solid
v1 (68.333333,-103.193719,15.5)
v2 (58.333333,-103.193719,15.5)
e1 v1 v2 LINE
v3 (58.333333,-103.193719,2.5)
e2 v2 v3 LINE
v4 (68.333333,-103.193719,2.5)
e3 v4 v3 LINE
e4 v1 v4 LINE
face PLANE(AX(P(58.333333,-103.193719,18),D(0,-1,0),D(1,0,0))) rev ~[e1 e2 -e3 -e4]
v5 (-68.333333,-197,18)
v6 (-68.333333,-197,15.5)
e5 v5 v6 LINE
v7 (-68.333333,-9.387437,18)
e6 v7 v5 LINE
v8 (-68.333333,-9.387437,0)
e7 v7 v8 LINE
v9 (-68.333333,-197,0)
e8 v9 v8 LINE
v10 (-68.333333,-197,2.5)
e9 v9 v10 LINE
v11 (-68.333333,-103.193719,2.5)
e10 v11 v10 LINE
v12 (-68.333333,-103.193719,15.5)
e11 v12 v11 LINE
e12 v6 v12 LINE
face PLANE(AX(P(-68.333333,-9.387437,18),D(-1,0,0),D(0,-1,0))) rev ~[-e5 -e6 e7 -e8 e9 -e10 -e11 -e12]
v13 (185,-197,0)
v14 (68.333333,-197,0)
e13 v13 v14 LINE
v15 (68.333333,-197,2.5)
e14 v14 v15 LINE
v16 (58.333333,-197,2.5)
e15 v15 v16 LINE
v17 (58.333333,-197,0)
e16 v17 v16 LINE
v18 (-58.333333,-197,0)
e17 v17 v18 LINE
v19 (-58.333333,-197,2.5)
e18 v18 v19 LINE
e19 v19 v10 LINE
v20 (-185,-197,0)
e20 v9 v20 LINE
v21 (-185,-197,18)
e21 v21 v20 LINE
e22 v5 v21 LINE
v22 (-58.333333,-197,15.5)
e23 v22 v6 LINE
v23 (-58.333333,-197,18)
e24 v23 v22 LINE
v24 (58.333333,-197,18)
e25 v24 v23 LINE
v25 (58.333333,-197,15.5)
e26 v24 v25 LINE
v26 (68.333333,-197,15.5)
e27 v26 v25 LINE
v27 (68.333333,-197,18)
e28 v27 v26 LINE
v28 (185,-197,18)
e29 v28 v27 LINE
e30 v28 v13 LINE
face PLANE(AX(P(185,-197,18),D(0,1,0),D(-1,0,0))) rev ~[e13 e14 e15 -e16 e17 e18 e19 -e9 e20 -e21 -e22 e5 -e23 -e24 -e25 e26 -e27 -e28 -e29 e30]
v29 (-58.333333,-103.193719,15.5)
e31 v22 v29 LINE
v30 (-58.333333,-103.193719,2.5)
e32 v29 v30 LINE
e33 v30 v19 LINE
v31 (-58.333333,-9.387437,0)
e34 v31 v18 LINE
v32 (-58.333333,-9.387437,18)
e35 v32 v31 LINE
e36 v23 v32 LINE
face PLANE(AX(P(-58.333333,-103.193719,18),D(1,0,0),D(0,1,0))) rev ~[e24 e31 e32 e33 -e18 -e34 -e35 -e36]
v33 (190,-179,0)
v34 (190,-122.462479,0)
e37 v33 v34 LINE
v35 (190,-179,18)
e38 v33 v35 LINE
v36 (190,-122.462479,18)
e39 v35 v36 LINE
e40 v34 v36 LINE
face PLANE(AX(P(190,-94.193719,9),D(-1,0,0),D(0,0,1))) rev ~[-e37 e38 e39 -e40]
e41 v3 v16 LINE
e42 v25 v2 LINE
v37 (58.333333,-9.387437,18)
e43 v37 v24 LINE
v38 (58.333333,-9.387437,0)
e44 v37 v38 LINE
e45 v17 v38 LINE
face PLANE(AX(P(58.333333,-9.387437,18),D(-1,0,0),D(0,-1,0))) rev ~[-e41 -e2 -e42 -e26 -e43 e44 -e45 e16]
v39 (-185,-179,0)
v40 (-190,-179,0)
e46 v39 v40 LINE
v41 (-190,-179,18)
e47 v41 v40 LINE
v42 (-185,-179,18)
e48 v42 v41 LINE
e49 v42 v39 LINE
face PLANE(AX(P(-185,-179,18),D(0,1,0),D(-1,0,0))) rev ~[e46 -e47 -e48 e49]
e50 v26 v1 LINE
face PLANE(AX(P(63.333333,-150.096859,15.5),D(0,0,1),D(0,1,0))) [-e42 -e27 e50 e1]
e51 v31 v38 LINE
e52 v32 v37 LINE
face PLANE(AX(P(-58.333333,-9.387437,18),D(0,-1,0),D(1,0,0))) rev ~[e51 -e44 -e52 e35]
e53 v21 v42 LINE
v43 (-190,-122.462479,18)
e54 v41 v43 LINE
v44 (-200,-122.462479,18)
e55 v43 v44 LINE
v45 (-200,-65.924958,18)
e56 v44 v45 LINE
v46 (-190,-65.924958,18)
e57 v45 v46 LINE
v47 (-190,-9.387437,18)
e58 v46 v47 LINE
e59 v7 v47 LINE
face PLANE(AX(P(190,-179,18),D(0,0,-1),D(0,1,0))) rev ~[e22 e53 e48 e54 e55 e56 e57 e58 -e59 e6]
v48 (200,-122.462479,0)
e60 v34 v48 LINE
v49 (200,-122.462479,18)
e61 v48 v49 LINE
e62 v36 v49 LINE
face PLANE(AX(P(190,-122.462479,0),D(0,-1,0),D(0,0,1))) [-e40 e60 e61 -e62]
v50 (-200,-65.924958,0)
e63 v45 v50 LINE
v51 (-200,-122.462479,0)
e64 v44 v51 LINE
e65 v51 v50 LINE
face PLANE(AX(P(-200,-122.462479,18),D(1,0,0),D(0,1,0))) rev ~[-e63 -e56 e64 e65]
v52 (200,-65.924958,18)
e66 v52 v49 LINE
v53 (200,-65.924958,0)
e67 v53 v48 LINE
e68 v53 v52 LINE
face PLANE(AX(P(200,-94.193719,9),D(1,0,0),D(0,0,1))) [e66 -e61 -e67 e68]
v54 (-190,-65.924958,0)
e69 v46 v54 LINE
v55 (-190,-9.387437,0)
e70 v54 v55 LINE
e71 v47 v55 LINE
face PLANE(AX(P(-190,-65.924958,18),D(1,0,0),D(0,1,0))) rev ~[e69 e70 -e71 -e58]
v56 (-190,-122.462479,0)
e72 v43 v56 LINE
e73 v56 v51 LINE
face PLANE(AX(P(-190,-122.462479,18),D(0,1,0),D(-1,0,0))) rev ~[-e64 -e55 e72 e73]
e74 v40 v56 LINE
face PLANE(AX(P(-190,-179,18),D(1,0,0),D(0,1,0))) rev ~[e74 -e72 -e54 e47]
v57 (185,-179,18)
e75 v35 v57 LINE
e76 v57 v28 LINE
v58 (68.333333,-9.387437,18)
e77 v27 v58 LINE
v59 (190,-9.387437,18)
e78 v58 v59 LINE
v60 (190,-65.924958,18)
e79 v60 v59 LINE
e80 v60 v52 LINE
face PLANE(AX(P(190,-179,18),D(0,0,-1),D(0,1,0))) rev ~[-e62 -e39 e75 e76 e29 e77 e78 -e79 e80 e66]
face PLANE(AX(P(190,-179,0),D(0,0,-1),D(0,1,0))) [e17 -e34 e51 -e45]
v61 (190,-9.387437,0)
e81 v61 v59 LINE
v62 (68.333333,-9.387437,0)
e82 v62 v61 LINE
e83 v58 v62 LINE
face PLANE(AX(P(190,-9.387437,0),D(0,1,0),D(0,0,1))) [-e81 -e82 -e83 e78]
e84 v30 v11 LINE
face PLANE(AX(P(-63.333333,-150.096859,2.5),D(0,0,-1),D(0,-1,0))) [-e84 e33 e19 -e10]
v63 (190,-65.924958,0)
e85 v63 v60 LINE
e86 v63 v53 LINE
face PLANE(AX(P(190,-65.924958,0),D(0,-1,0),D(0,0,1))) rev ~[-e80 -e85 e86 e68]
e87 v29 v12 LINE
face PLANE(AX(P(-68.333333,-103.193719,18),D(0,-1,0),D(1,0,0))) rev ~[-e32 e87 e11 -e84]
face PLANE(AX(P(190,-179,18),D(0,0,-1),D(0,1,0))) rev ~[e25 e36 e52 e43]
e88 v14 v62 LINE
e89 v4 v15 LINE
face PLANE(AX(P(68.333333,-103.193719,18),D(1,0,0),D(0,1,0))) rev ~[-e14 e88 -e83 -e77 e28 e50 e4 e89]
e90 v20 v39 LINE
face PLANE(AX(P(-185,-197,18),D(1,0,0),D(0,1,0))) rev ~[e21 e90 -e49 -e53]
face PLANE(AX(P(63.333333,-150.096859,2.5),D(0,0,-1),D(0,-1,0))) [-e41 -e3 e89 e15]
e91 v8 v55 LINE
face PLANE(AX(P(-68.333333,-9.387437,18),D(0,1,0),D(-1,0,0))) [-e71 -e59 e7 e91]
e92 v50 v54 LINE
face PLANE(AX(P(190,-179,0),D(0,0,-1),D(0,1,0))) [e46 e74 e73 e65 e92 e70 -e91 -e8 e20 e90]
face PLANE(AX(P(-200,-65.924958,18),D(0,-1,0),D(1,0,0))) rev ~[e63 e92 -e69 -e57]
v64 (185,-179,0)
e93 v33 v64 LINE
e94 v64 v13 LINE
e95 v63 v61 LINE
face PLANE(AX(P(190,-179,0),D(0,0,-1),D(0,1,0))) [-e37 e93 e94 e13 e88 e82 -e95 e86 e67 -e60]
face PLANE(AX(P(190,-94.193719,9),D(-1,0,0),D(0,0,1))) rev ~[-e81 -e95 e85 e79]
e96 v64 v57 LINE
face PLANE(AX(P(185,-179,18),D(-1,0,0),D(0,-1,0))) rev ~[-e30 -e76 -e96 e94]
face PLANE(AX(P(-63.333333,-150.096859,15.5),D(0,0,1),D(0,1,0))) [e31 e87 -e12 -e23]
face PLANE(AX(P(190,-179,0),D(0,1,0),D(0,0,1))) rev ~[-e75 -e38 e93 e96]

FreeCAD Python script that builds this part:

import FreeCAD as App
import Part
import Sketcher
from FreeCAD import Vector
Q = App.Units.Quantity


def add_polygon(sketch, points):
    """Adds a closed chain of lines whose ends are joined by coincident constraints."""
    first, n = sketch.GeometryCount, len(points)
    for a, b in zip(points, points[1:] + points[:1]):
        sketch.addGeometry(Part.LineSegment(App.Vector(*a, 0), App.Vector(*b, 0)), False)
    for i in range(n):
        sketch.addConstraint(Sketcher.Constraint("Coincident", first + i, 2, first + (i + 1) % n, 1))

doc = App.newDocument("Part")
params = doc.addObject("Spreadsheet::Sheet", "Params")
for row, (alias, value) in enumerate([
    ("sketch1_width", "18 mm"),
    ("pad1_length", "5 mm"),
    ("sketch2_width", "18 mm"),
    ("pad2_length", "10 mm"),
    ("sketch3_width", "18 mm"),
    ("sketch3_height", "10 mm"),
    ("sketch3_height2", "5 mm"),
    ("sketch3_height3", "370 mm"),
    ("pad3_length", "18 mm"),
    ("sketch4_height", "10 mm"),
    ("pocket1_length", "2.5 mm"),
    ("sketch5_height", "10 mm"),
    ("pocket2_length", "2.5 mm"),
], start=1):
    params.set(f"A{row}", alias)
    params.set(f"B{row}", "=" + value)
    params.setAlias(f"B{row}", alias)

body = doc.addObject("PartDesign::Body", "Body")

sketch1 = doc.addObject("Sketcher::SketchObject", "Sketch")
body.addObject(sketch1)
sketch1.AttachmentSupport = (doc.XY_Plane, [""])
sketch1.MapMode = "FlatFace"
add_polygon(sketch1, [(-9, -12), (-9, -182), (9, -182), (9, -12)])
sketch1.addConstraint([
    Sketcher.Constraint("Vertical", 0),
    Sketcher.Constraint("Horizontal", 1),
    Sketcher.Constraint("Vertical", 2),
    Sketcher.Constraint("Horizontal", 3),
    Sketcher.Constraint("DistanceX", 1, 1, 1, 2, Q("18 mm")),
    Sketcher.Constraint("DistanceX", 0, 2, -1, 1, Q("9 mm")),
    Sketcher.Constraint("DistanceY", 0, 2, -1, 1, Q("182 mm")),
    Sketcher.Constraint("DistanceY", 0, 2, 0, 1, Q("169.612563 mm")),
])
sketch1.setExpression("Constraints[8]", "Params.sketch1_width")
pad1 = doc.addObject("PartDesign::Pad", "Pad")
body.addObject(pad1)
pad1.Profile = sketch1
pad1.setExpression("Length", "Params.pad1_length")

sketch2 = doc.addObject("Sketcher::SketchObject", "Sketch001")
body.addObject(sketch2)
sketch2.AttachmentSupport = (doc.XY_Plane, [""])
sketch2.MapMode = "FlatFace"
add_polygon(sketch2, [(-9, -125), (-9, -69), (9, -69), (9, -125)])
sketch2.addConstraint([
    Sketcher.Constraint("Vertical", 0),
    Sketcher.Constraint("Horizontal", 1),
    Sketcher.Constraint("Vertical", 2),
    Sketcher.Constraint("Horizontal", 3),
    Sketcher.Constraint("DistanceX", 1, 1, 1, 2, Q("18 mm")),
    Sketcher.Constraint("DistanceX", 0, 2, -1, 1, Q("9 mm")),
    Sketcher.Constraint("DistanceY", 0, 1, 0, 2, Q("56.537521 mm")),
    Sketcher.Constraint("DistanceY", 0, 2, -1, 1, Q("68.924958 mm")),
])
sketch2.setExpression("Constraints[8]", "Params.sketch2_width")
pad2 = doc.addObject("PartDesign::Pad", "Pad001")
body.addObject(pad2)
pad2.Profile = sketch2
pad2.setExpression("Length", "Params.pad2_length")
pad2.Reversed = True

sketch3 = doc.addObject("Sketcher::SketchObject", "Sketch002")
body.addObject(sketch3)
sketch3.AttachmentSupport = (doc.YZ_Plane, [""])
sketch3.MapMode = "FlatFace"
sketch3.AttachmentOffset = App.Placement(Vector(0, 0, 9), App.Rotation())
add_polygon(sketch3, [(-69, 0), (-12, 0), (-12, 122), (-106, 122), (-106, 132), (-12, 132), (-12, 248), (-106, 248), (-106, 258), (-12, 258), (-12, 380), (-69, 380), (-69, 390), (-125, 390), (-125, 380), (-182, 380), (-182, 375), (-200, 375), (-200, 5), (-182, 5), (-182, 0), (-125, 0), (-125, -10), (-69, -10)])
sketch3.addConstraint([
    Sketcher.Constraint("Horizontal", 0),
    Sketcher.Constraint("Vertical", 1),
    Sketcher.Constraint("Horizontal", 2),
    Sketcher.Constraint("Vertical", 3),
    Sketcher.Constraint("Horizontal", 4),
    Sketcher.Constraint("Vertical", 5),
    Sketcher.Constraint("Horizontal", 6),
    Sketcher.Constraint("Vertical", 7),
    Sketcher.Constraint("Horizontal", 8),
    Sketcher.Constraint("Vertical", 9),
    Sketcher.Constraint("Horizontal", 10),
    Sketcher.Constraint("Vertical", 11),
    Sketcher.Constraint("Horizontal", 12),
    Sketcher.Constraint("Vertical", 13),
    Sketcher.Constraint("Horizontal", 14),
    Sketcher.Constraint("Vertical", 15),
    Sketcher.Constraint("Horizontal", 16),
    Sketcher.Constraint("Vertical", 17),
    Sketcher.Constraint("Horizontal", 18),
    Sketcher.Constraint("Vertical", 19),
    Sketcher.Constraint("Horizontal", 20),
    Sketcher.Constraint("Vertical", 21),
    Sketcher.Constraint("Horizontal", 22),
    Sketcher.Constraint("Vertical", 23),
    Sketcher.Constraint("PointOnObject", 0, 2, -1),
    Sketcher.Constraint("PointOnObject", 19, 2, -1),
    Sketcher.Constraint("Horizontal", 10, 2, 13, 2),
    Sketcher.Constraint("Vertical", 1, 2, 4, 2),
    Sketcher.Constraint("Vertical", 3, 2, 6, 2),
    Sketcher.Constraint("Vertical", 5, 2, 8, 2),
    Sketcher.Constraint("Vertical", 15, 2, 18, 2),
    Sketcher.Constraint("Vertical", 13, 2, 20, 2),
    Sketcher.Constraint("Vertical", 11, 2, 22, 2),
    Sketcher.Constraint("Equal", 10, 12),
    Sketcher.Constraint("Equal", 12, 14),
    Sketcher.Constraint("Equal", 3, 7),
    Sketcher.Constraint("Equal", 1, 9),
    Sketcher.Constraint("Equal", 7, 11),
    Sketcher.Constraint("Equal", 15, 19),
    Sketcher.Constraint("Equal", 13, 21),
    Sketcher.Constraint("DistanceX", 16, 2, 16, 1, Q("18 mm")),
    Sketcher.Constraint("DistanceY", 3, 1, 3, 2, Q("10 mm")),
    Sketcher.Constraint("DistanceY", 15, 2, 15, 1, Q("5 mm")),
    Sketcher.Constraint("DistanceY", 17, 2, 17, 1, Q("370 mm")),
    Sketcher.Constraint("DistanceX", 14, 2, -1, 1, Q("182 mm")),
    Sketcher.Constraint("DistanceX", 0, 1, 0, 2, Q("56.537521 mm")),
    Sketcher.Constraint("DistanceX", 2, 2, 2, 1, Q("93.806281 mm")),
    Sketcher.Constraint("DistanceY", 1, 1, 1, 2, Q("121.666667 mm")),
])
sketch3.setExpression("Constraints[64]", "Params.sketch3_width")
sketch3.setExpression("Constraints[65]", "Params.sketch3_height")
sketch3.setExpression("Constraints[66]", "Params.sketch3_height2")
sketch3.setExpression("Constraints[67]", "Params.sketch3_height3")
pad3 = doc.addObject("PartDesign::Pad", "Pad002")
body.addObject(pad3)
pad3.Profile = sketch3
pad3.setExpression("Length", "Params.pad3_length")
pad3.Reversed = True

sketch4 = doc.addObject("Sketcher::SketchObject", "Sketch003")
body.addObject(sketch4)
sketch4.AttachmentSupport = (doc.YZ_Plane, [""])
sketch4.MapMode = "FlatFace"
sketch4.AttachmentOffset = App.Placement(Vector(0, 0, 9), App.Rotation())
add_polygon(sketch4, [(-200, 258), (-200, 248), (-106, 248), (-106, 258)])
add_polygon(sketch4, [(-200, 132), (-200, 122), (-106, 122), (-106, 132)])
sketch4.addConstraint([
    Sketcher.Constraint("Vertical", 0),
    Sketcher.Constraint("Horizontal", 1),
    Sketcher.Constraint("Vertical", 2),
    Sketcher.Constraint("Horizontal", 3),
    Sketcher.Constraint("Vertical", 4),
    Sketcher.Constraint("Horizontal", 5),
    Sketcher.Constraint("Vertical", 6),
    Sketcher.Constraint("Horizontal", 7),
    Sketcher.Constraint("Vertical", 3, 2, 4, 2),
    Sketcher.Constraint("Vertical", 2, 2, 5, 2),
    Sketcher.Constraint("Equal", 2, 4),
    Sketcher.Constraint("DistanceY", 0, 2, 0, 1, Q("10 mm")),
    Sketcher.Constraint("DistanceX", 0, 2, -1, 1, Q("200 mm")),
    Sketcher.Constraint("DistanceX", 1, 1, 1, 2, Q("93.806281 mm")),
    Sketcher.Constraint("DistanceY", -1, 1, 0, 2, Q("248.333333 mm")),
    Sketcher.Constraint("DistanceY", -1, 1, 4, 2, Q("121.666667 mm")),
])
sketch4.setExpression("Constraints[19]", "Params.sketch4_height")
pocket1 = doc.addObject("PartDesign::Pocket", "Pocket")
body.addObject(pocket1)
pocket1.Profile = sketch4
pocket1.setExpression("Length", "Params.pocket1_length")

sketch5 = doc.addObject("Sketcher::SketchObject", "Sketch004")
body.addObject(sketch5)
sketch5.AttachmentSupport = (doc.YZ_Plane, [""])
sketch5.MapMode = "FlatFace"
sketch5.AttachmentOffset = App.Placement(Vector(0, 0, -9), App.Rotation())
add_polygon(sketch5, [(-106, 132), (-106, 122), (-200, 122), (-200, 132)])
add_polygon(sketch5, [(-106, 258), (-106, 248), (-200, 248), (-200, 258)])
sketch5.addConstraint([
    Sketcher.Constraint("Vertical", 0),
    Sketcher.Constraint("Horizontal", 1),
    Sketcher.Constraint("Vertical", 2),
    Sketcher.Constraint("Horizontal", 3),
    Sketcher.Constraint("Vertical", 4),
    Sketcher.Constraint("Horizontal", 5),
    Sketcher.Constraint("Vertical", 6),
    Sketcher.Constraint("Horizontal", 7),
    Sketcher.Constraint("Vertical", 3, 2, 4, 2),
    Sketcher.Constraint("Vertical", 2, 2, 5, 2),
    Sketcher.Constraint("Equal", 2, 4),
    Sketcher.Constraint("DistanceY", 0, 2, 0, 1, Q("10 mm")),
    Sketcher.Constraint("DistanceX", 1, 2, -1, 1, Q("200 mm")),
    Sketcher.Constraint("DistanceX", 1, 2, 1, 1, Q("93.806281 mm")),
    Sketcher.Constraint("DistanceY", -1, 1, 0, 2, Q("121.666667 mm")),
    Sketcher.Constraint("DistanceY", -1, 1, 4, 2, Q("248.333333 mm")),
])
sketch5.setExpression("Constraints[19]", "Params.sketch5_height")
pocket2 = doc.addObject("PartDesign::Pocket", "Pocket001")
body.addObject(pocket2)
pocket2.Profile = sketch5
pocket2.setExpression("Length", "Params.pocket2_length")
pocket2.Reversed = True
body2 = doc.addObject("PartDesign::Body", "Body001")
doc.recompute()

body.Placement = App.Placement(Vector(0, 0, 13), App.Rotation(Vector(0, 0, 1), 0))
boolean = doc.addObject("PartDesign::Boolean", "Boolean")
body2.addObject(boolean)
boolean.Type = "Fuse"
boolean.addObjects([body])
body3 = doc.addObject("PartDesign::Body", "Body002")
doc.recompute()

body2.Placement = App.Placement(Vector(203, 3, 9), App.Rotation(Vector(0, -1, 0), 90))
boolean2 = doc.addObject("PartDesign::Boolean", "Boolean001")
body3.addObject(boolean2)
boolean2.Type = "Fuse"
boolean2.addObjects([body2])

doc.recompute()
